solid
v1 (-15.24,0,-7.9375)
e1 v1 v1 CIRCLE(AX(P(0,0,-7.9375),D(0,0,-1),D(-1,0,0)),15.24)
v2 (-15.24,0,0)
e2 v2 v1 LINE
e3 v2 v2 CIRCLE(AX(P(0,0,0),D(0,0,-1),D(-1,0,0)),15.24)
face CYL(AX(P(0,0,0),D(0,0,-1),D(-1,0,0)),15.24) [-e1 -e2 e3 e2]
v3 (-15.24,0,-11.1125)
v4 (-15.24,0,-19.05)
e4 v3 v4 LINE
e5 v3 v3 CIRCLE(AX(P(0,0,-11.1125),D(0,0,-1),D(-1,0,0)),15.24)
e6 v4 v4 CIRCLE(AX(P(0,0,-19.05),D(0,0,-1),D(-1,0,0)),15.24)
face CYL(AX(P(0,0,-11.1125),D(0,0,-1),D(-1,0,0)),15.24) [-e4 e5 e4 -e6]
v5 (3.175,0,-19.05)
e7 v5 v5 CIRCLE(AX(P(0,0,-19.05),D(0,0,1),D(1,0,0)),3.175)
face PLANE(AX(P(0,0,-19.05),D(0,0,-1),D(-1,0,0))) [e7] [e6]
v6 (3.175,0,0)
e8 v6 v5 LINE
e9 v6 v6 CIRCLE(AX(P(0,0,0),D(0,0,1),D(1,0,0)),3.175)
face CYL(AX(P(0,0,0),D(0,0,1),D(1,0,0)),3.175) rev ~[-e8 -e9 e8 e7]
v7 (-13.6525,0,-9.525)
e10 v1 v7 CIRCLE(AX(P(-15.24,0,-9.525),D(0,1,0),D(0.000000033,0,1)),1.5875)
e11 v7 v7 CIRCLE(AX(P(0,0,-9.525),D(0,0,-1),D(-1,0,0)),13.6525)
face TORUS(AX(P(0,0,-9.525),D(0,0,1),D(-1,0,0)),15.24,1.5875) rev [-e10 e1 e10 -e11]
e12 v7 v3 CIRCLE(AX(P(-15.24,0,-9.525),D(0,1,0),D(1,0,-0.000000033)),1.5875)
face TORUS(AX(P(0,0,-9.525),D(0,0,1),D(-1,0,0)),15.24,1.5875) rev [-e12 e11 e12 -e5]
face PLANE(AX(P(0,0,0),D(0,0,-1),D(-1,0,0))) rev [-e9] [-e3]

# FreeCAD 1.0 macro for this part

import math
import FreeCAD as App
import Part
import Sketcher
from FreeCAD import Vector
Q = App.Units.Quantity

doc = App.newDocument("Part")
params = doc.addObject("Spreadsheet::Sheet", "Params")
for row, (alias, value) in enumerate([
    ("sketch1_width", "0.6 in"),
    ("sketch1_radius", "0.0625 in"),
    ("sketch1_height", "0.75 in"),
    ("revolution_angle", "360 deg"),
    ("sketch2_diameter", "0.25 in"),
    ("pocket1_length", "1 in"),
    ("sketch3_diameter", "0.25 in"),
    ("pocket2_length", "1 in"),
], start=1):
    params.set(f"A{row}", alias)
    params.set(f"B{row}", "=" + value)
    params.setAlias(f"B{row}", alias)

body = doc.addObject("PartDesign::Body", "Body")

# Sketch on XZ plane
sketch1 = body.newObject("Sketcher::SketchObject", "Sketch")
sketch1.AttachmentSupport = (doc.getObject("XZ_Plane"), [""])
sketch1.MapMode = "FlatFace"
sketch1.addGeometry(Part.LineSegment(Vector(0, -19.1, 0), Vector(0, 0, 0)), False)
sketch1.addGeometry(Part.LineSegment(Vector(0, 0, 0), Vector(-15.2, 0, 0)), False)
sketch1.addGeometry(Part.LineSegment(Vector(-15.2, 0, 0), Vector(-15.2, -7.9, 0)), False)
sketch1.addGeometry(Part.ArcOfCircle(Part.Circle(Vector(-15.2, -9.5, 0), Vector(0, 0, 1), 1.6), math.radians(0), math.radians(90)), False)
sketch1.addGeometry(Part.ArcOfCircle(Part.Circle(Vector(-15.2, -9.5, 0), Vector(0, 0, 1), 1.6), math.radians(-90), math.radians(0)), False)
sketch1.addGeometry(Part.LineSegment(Vector(-15.2, -11.1, 0), Vector(-15.2, -19.1, 0)), False)
sketch1.addGeometry(Part.LineSegment(Vector(-15.2, -19.1, 0), Vector(0, -19.1, 0)), False)
sketch1.addConstraint(Sketcher.Constraint("Coincident", 0, 2, 1, 1))
sketch1.addConstraint(Sketcher.Constraint("Coincident", 1, 2, 2, 1))
sketch1.addConstraint(Sketcher.Constraint("Coincident", 2, 2, 3, 2))
sketch1.addConstraint(Sketcher.Constraint("Tangent", 3, 1, 4, 2))
sketch1.addConstraint(Sketcher.Constraint("Coincident", 4, 1, 5, 1))
sketch1.addConstraint(Sketcher.Constraint("Coincident", 5, 2, 6, 1))
sketch1.addConstraint(Sketcher.Constraint("Coincident", 6, 2, 0, 1))
sketch1.addConstraint(Sketcher.Constraint("Vertical", 0))
sketch1.addConstraint(Sketcher.Constraint("Horizontal", 1))
sketch1.addConstraint(Sketcher.Constraint("Vertical", 2))
sketch1.addConstraint(Sketcher.Constraint("Vertical", 5))
sketch1.addConstraint(Sketcher.Constraint("Horizontal", 6))
sketch1.addConstraint(Sketcher.Constraint("Coincident", 0, 2, -1, 1))
sketch1.addConstraint(Sketcher.Constraint("Equal", 3, 4))
sketch1.addConstraint(Sketcher.Constraint("Horizontal", 4, 3, 3, 1))
sketch1.addConstraint(Sketcher.Constraint("Vertical", 4, 3, 1, 2))
sketch1.addConstraint(Sketcher.Constraint("Vertical", 2, 2, 4, 1))
sketch1.addConstraint(Sketcher.Constraint("Equal", 2, 5))
sketch1.addConstraint(Sketcher.Constraint("DistanceX", 1, 2, 1, 1, Q("0.6 in")))
sketch1.addConstraint(Sketcher.Constraint("Radius", 3, Q("0.0625 in")))
sketch1.addConstraint(Sketcher.Constraint("DistanceY", 0, 1, 0, 2, Q("0.75 in")))
sketch1.setExpression("Constraints[18]", "Params.sketch1_width")
sketch1.setExpression("Constraints[19]", "Params.sketch1_radius")
sketch1.setExpression("Constraints[20]", "Params.sketch1_height")
revolution = body.newObject("PartDesign::Revolution", "Revolution")
revolution.Profile = sketch1
revolution.ReferenceAxis = (sketch1, ["V_Axis"])
revolution.setExpression("Angle", "Params.revolution_angle")

# Sketch on XY plane
sketch2 = body.newObject("Sketcher::SketchObject", "Sketch001")
sketch2.AttachmentSupport = (doc.getObject("XY_Plane"), [""])
sketch2.MapMode = "FlatFace"
sketch2.addGeometry(Part.Circle(Vector(0, 0, 0), Vector(0, 0, 1), 3.2), False)
sketch2.addConstraint(Sketcher.Constraint("Coincident", 0, 3, -1, 1))
sketch2.addConstraint(Sketcher.Constraint("Diameter", 0, Q("0.25 in")))
sketch2.setExpression("Constraints[1]", "Params.sketch2_diameter")
pocket1 = body.newObject("PartDesign::Pocket", "Pocket")
pocket1.Profile = sketch2
pocket1.setExpression("Length", "Params.pocket1_length")

# Sketch on XY plane
sketch3 = body.newObject("Sketcher::SketchObject", "Sketch002")
sketch3.AttachmentSupport = (doc.getObject("XY_Plane"), [""])
sketch3.MapMode = "FlatFace"
sketch3.addGeometry(Part.Circle(Vector(0, 0, 0), Vector(0, 0, 1), 3.2), False)
sketch3.addConstraint(Sketcher.Constraint("Coincident", 0, 3, -1, 1))
sketch3.addConstraint(Sketcher.Constraint("Diameter", 0, Q("0.25 in")))
sketch3.setExpression("Constraints[1]", "Params.sketch3_diameter")
pocket2 = body.newObject("PartDesign::Pocket", "Pocket001")
pocket2.Profile = sketch3
pocket2.setExpression("Length", "Params.pocket2_length")

doc.recompute()
